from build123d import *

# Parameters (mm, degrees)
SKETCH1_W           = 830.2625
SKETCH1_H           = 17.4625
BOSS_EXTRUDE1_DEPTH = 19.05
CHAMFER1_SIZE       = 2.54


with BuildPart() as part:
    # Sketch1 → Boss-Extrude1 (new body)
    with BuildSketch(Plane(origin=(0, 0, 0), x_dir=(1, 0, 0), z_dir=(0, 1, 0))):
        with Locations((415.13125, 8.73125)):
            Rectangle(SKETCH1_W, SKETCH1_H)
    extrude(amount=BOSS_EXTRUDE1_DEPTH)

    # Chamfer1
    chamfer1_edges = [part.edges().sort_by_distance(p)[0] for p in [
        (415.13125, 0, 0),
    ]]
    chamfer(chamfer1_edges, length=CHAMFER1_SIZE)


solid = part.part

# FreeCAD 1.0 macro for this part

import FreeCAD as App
import Part
import Sketcher

V = App.Vector
Q = App.Units.Quantity


def edges_at(feature, points):
    """Names of the edges that pass closest to the given points."""
    edges = feature.Shape.Edges
    near = lambda p: min(range(len(edges)), key=lambda i: edges[i].distToShape(Part.Vertex(*p))[0])
    return sorted({f"Edge{near(p) + 1}" for p in points})

doc = App.newDocument("Part")
body = doc.addObject("PartDesign::Body", "Body")

# Sketch on XZ plane
sketch1 = doc.addObject("Sketcher::SketchObject", "Sketch")
body.addObject(sketch1)
sketch1.AttachmentSupport = (doc.XZ_Plane, [""])
sketch1.MapMode = "FlatFace"
sketch1.addGeometry([
    Part.LineSegment(V(0, -17.4625, 0), V(0, 0, 0)),
    Part.LineSegment(V(0, 0, 0), V(830.2625, 0, 0)),
    Part.LineSegment(V(830.2625, 0, 0), V(830.2625, -17.4625, 0)),
    Part.LineSegment(V(830.2625, -17.4625, 0), V(0, -17.4625, 0)),
], False)
sketch1.addConstraint([
    Sketcher.Constraint("Coincident", 0, 2, 1, 1),
    Sketcher.Constraint("Coincident", 1, 2, 2, 1),
    Sketcher.Constraint("Coincident", 2, 2, 3, 1),
    Sketcher.Constraint("Coincident", 3, 2, 0, 1),
    Sketcher.Constraint("Vertical", 0),
    Sketcher.Constraint("Horizontal", 1),
    Sketcher.Constraint("Vertical", 2),
    Sketcher.Constraint("Horizontal", 3),
    Sketcher.Constraint("Coincident", 0, 2, -1, 1),
    Sketcher.Constraint("DistanceX", 1, 1, 1, 2, Q("32.6875 in")),
    Sketcher.Constraint("DistanceY", 0, 1, 0, 2, Q("0.6875 in")),
])
pad1 = doc.addObject("PartDesign::Pad", "Pad")
body.addObject(pad1)
pad1.Profile = sketch1
pad1.Length = Q("0.75 in")
pad1.Reversed = True
doc.recompute()

chamfer = doc.addObject("PartDesign::Chamfer", "Chamfer")
body.addObject(chamfer)
chamfer.Base = (pad1, edges_at(pad1, [(415.131, 0, 0)]))
chamfer.Size = Q("0.1 in")

doc.recompute()
